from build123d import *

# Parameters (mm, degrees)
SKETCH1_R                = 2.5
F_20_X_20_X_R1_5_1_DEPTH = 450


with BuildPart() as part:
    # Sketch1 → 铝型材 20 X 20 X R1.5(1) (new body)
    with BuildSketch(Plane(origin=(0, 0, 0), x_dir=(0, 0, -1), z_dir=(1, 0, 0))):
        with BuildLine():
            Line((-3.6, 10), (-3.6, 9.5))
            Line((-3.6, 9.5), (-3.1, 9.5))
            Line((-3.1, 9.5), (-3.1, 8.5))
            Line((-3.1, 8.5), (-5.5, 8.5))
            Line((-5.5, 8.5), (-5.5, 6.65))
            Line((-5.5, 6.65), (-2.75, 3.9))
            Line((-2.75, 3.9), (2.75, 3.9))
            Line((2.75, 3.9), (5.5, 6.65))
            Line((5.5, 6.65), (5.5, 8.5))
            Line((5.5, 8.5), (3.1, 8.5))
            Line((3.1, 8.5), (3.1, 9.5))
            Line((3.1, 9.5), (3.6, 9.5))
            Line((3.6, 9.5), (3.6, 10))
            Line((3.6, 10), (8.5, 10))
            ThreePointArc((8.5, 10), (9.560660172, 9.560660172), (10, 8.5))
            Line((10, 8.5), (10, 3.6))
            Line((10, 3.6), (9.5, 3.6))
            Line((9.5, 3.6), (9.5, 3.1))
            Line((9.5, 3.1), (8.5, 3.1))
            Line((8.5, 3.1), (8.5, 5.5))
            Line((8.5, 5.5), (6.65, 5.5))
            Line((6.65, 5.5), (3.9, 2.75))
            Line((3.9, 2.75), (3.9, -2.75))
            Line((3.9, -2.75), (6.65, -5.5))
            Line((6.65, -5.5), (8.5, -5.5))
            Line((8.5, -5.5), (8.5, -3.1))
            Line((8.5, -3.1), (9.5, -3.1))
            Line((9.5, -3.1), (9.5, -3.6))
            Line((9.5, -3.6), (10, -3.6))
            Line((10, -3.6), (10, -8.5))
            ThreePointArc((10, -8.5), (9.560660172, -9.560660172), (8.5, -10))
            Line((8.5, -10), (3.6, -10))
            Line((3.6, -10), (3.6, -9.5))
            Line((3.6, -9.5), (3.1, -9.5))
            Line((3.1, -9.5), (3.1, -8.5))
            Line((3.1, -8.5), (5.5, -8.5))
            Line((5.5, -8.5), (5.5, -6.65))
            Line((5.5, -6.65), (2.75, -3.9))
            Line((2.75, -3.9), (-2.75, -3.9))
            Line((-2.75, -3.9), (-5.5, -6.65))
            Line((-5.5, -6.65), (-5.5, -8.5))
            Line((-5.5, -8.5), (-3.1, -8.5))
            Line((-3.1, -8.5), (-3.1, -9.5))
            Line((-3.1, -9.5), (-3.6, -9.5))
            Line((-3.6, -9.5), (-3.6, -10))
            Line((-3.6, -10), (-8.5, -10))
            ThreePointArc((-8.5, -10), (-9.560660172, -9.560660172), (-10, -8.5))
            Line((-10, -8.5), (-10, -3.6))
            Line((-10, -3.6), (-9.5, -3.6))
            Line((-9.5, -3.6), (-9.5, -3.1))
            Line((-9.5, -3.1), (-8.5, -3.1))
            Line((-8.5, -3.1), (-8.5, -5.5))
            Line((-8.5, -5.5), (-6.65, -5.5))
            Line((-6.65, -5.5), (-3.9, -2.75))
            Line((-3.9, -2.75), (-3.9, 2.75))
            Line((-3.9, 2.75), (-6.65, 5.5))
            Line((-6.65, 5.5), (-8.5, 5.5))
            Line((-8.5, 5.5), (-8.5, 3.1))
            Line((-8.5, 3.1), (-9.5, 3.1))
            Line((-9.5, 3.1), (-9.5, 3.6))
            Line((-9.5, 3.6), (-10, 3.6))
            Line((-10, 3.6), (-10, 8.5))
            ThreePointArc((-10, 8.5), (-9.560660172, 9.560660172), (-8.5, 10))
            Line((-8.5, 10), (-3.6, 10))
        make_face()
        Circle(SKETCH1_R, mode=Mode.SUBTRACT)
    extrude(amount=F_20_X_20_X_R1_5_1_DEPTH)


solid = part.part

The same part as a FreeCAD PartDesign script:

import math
import FreeCAD as App
import Part
import Sketcher

doc = App.newDocument("Part")
params = doc.addObject("Spreadsheet::Sheet", "Params")
for row, (alias, value) in enumerate([
    ("sketch1_diameter", "5 mm"),
    ("sketch1_radius", "1.5 mm"),
    ("sketch1_width", "1 mm"),
    ("sketch1_width2", "4.9 mm"),
    ("sketch1_width3", "2.4 mm"),
    ("pad1_length", "450 mm"),
], start=1):
    params.set(f"A{row}", alias)
    params.set(f"B{row}", "=" + value)
    params.setAlias(f"B{row}", alias)

body = doc.addObject("PartDesign::Body", "Body")

sketch1 = doc.addObject("Sketcher::SketchObject", "Sketch")
body.addObject(sketch1)
sketch1.AttachmentSupport = (doc.YZ_Plane, [""])
sketch1.MapMode = "FlatFace"
sketch1.addGeometry(Part.LineSegment(App.Vector(9.5, 3.6, 0), App.Vector(10, 3.6, 0)), False)
sketch1.addGeometry(Part.LineSegment(App.Vector(10, 3.6, 0), App.Vector(10, 8.5, 0)), False)
sketch1.addGeometry(Part.ArcOfCircle(Part.Circle(App.Vector(8.5, 8.5, 0), App.Vector(0, 0, 1), 1.5), math.radians(0), math.radians(90)), False)
sketch1.addGeometry(Part.LineSegment(App.Vector(8.5, 10, 0), App.Vector(3.6, 10, 0)), False)
sketch1.addGeometry(Part.LineSegment(App.Vector(3.6, 10, 0), App.Vector(3.6, 9.5, 0)), False)
sketch1.addGeometry(Part.LineSegment(App.Vector(3.6, 9.5, 0), App.Vector(3.1, 9.5, 0)), False)
sketch1.addGeometry(Part.LineSegment(App.Vector(3.1, 9.5, 0), App.Vector(3.1, 8.5, 0)), False)
sketch1.addGeometry(Part.LineSegment(App.Vector(3.1, 8.5, 0), App.Vector(5.5, 8.5, 0)), False)
sketch1.addGeometry(Part.LineSegment(App.Vector(5.5, 8.5, 0), App.Vector(5.5, 6.7, 0)), False)
sketch1.addGeometry(Part.LineSegment(App.Vector(5.5, 6.7, 0), App.Vector(2.8, 3.9, 0)), False)
sketch1.addGeometry(Part.LineSegment(App.Vector(2.8, 3.9, 0), App.Vector(-2.8, 3.9, 0)), False)
sketch1.addGeometry(Part.LineSegment(App.Vector(-2.8, 3.9, 0), App.Vector(-5.5, 6.7, 0)), False)
sketch1.addGeometry(Part.LineSegment(App.Vector(-5.5, 6.7, 0), App.Vector(-5.5, 8.5, 0)), False)
sketch1.addGeometry(Part.LineSegment(App.Vector(-5.5, 8.5, 0), App.Vector(-3.1, 8.5, 0)), False)
sketch1.addGeometry(Part.LineSegment(App.Vector(-3.1, 8.5, 0), App.Vector(-3.1, 9.5, 0)), False)
sketch1.addGeometry(Part.LineSegment(App.Vector(-3.1, 9.5, 0), App.Vector(-3.6, 9.5, 0)), False)
sketch1.addGeometry(Part.LineSegment(App.Vector(-3.6, 9.5, 0), App.Vector(-3.6, 10, 0)), False)
sketch1.addGeometry(Part.LineSegment(App.Vector(-3.6, 10, 0), App.Vector(-8.5, 10, 0)), False)
sketch1.addGeometry(Part.ArcOfCircle(Part.Circle(App.Vector(-8.5, 8.5, 0), App.Vector(0, 0, 1), 1.5), math.radians(90), math.radians(180)), False)
sketch1.addGeometry(Part.LineSegment(App.Vector(-10, 8.5, 0), App.Vector(-10, 3.6, 0)), False)
sketch1.addGeometry(Part.LineSegment(App.Vector(-10, 3.6, 0), App.Vector(-9.5, 3.6, 0)), False)
sketch1.addGeometry(Part.LineSegment(App.Vector(-9.5, 3.6, 0), App.Vector(-9.5, 3.1, 0)), False)
sketch1.addGeometry(Part.LineSegment(App.Vector(-9.5, 3.1, 0), App.Vector(-8.5, 3.1, 0)), False)
sketch1.addGeometry(Part.LineSegment(App.Vector(-8.5, 3.1, 0), App.Vector(-8.5, 5.5, 0)), False)
sketch1.addGeometry(Part.LineSegment(App.Vector(-8.5, 5.5, 0), App.Vector(-6.7, 5.5, 0)), False)
sketch1.addGeometry(Part.LineSegment(App.Vector(-6.7, 5.5, 0), App.Vector(-3.9, 2.8, 0)), False)
sketch1.addGeometry(Part.LineSegment(App.Vector(-3.9, 2.8, 0), App.Vector(-3.9, -2.8, 0)), False)
sketch1.addGeometry(Part.LineSegment(App.Vector(-3.9, -2.8, 0), App.Vector(-6.7, -5.5, 0)), False)
sketch1.addGeometry(Part.LineSegment(App.Vector(-6.7, -5.5, 0), App.Vector(-8.5, -5.5, 0)), False)
sketch1.addGeometry(Part.LineSegment(App.Vector(-8.5, -5.5, 0), App.Vector(-8.5, -3.1, 0)), False)
sketch1.addGeometry(Part.LineSegment(App.Vector(-8.5, -3.1, 0), App.Vector(-9.5, -3.1, 0)), False)
sketch1.addGeometry(Part.LineSegment(App.Vector(-9.5, -3.1, 0), App.Vector(-9.5, -3.6, 0)), False)
sketch1.addGeometry(Part.LineSegment(App.Vector(-9.5, -3.6, 0), App.Vector(-10, -3.6, 0)), False)
sketch1.addGeometry(Part.LineSegment(App.Vector(-10, -3.6, 0), App.Vector(-10, -8.5, 0)), False)
sketch1.addGeometry(Part.ArcOfCircle(Part.Circle(App.Vector(-8.5, -8.5, 0), App.Vector(0, 0, 1), 1.5), math.radians(180), math.radians(270)), False)
sketch1.addGeometry(Part.LineSegment(App.Vector(-8.5, -10, 0), App.Vector(-3.6, -10, 0)), False)
sketch1.addGeometry(Part.LineSegment(App.Vector(-3.6, -10, 0), App.Vector(-3.6, -9.5, 0)), False)
sketch1.addGeometry(Part.LineSegment(App.Vector(-3.6, -9.5, 0), App.Vector(-3.1, -9.5, 0)), False)
sketch1.addGeometry(Part.LineSegment(App.Vector(-3.1, -9.5, 0), App.Vector(-3.1, -8.5, 0)), False)
sketch1.addGeometry(Part.LineSegment(App.Vector(-3.1, -8.5, 0), App.Vector(-5.5, -8.5, 0)), False)
sketch1.addGeometry(Part.LineSegment(App.Vector(-5.5, -8.5, 0), App.Vector(-5.5, -6.7, 0)), False)
sketch1.addGeometry(Part.LineSegment(App.Vector(-5.5, -6.7, 0), App.Vector(-2.8, -3.9, 0)), False)
sketch1.addGeometry(Part.LineSegment(App.Vector(-2.8, -3.9, 0), App.Vector(2.8, -3.9, 0)), False)
sketch1.addGeometry(Part.LineSegment(App.Vector(2.8, -3.9, 0), App.Vector(5.5, -6.7, 0)), False)
sketch1.addGeometry(Part.LineSegment(App.Vector(5.5, -6.7, 0), App.Vector(5.5, -8.5, 0)), False)
sketch1.addGeometry(Part.LineSegment(App.Vector(5.5, -8.5, 0), App.Vector(3.1, -8.5, 0)), False)
sketch1.addGeometry(Part.LineSegment(App.Vector(3.1, -8.5, 0), App.Vector(3.1, -9.5, 0)), False)
sketch1.addGeometry(Part.LineSegment(App.Vector(3.1, -9.5, 0), App.Vector(3.6, -9.5, 0)), False)
sketch1.addGeometry(Part.LineSegment(App.Vector(3.6, -9.5, 0), App.Vector(3.6, -10, 0)), False)
sketch1.addGeometry(Part.LineSegment(App.Vector(3.6, -10, 0), App.Vector(8.5, -10, 0)), False)
sketch1.addGeometry(Part.ArcOfCircle(Part.Circle(App.Vector(8.5, -8.5, 0), App.Vector(0, 0, 1), 1.5), math.radians(-90), math.radians(0)), False)
sketch1.addGeometry(Part.LineSegment(App.Vector(10, -8.5, 0), App.Vector(10, -3.6, 0)), False)
sketch1.addGeometry(Part.LineSegment(App.Vector(10, -3.6, 0), App.Vector(9.5, -3.6, 0)), False)
sketch1.addGeometry(Part.LineSegment(App.Vector(9.5, -3.6, 0), App.Vector(9.5, -3.1, 0)), False)
sketch1.addGeometry(Part.LineSegment(App.Vector(9.5, -3.1, 0), App.Vector(8.5, -3.1, 0)), False)
sketch1.addGeometry(Part.LineSegment(App.Vector(8.5, -3.1, 0), App.Vector(8.5, -5.5, 0)), False)
sketch1.addGeometry(Part.LineSegment(App.Vector(8.5, -5.5, 0), App.Vector(6.7, -5.5, 0)), False)
sketch1.addGeometry(Part.LineSegment(App.Vector(6.7, -5.5, 0), App.Vector(3.9, -2.8, 0)), False)
sketch1.addGeometry(Part.LineSegment(App.Vector(3.9, -2.8, 0), App.Vector(3.9, 2.8, 0)), False)
sketch1.addGeometry(Part.LineSegment(App.Vector(3.9, 2.8, 0), App.Vector(6.7, 5.5, 0)), False)
sketch1.addGeometry(Part.LineSegment(App.Vector(6.7, 5.5, 0), App.Vector(8.5, 5.5, 0)), False)
sketch1.addGeometry(Part.LineSegment(App.Vector(8.5, 5.5, 0), App.Vector(8.5, 3.1, 0)), False)
sketch1.addGeometry(Part.LineSegment(App.Vector(8.5, 3.1, 0), App.Vector(9.5, 3.1, 0)), False)
sketch1.addGeometry(Part.LineSegment(App.Vector(9.5, 3.1, 0), App.Vector(9.5, 3.6, 0)), False)
sketch1.addGeometry(Part.Circle(App.Vector(0, 0, 0), App.Vector(0, 0, 1), 2.5), False)
sketch1.addConstraint(Sketcher.Constraint("Coincident", 0, 2, 1, 1))
sketch1.addConstraint(Sketcher.Constraint("Tangent", 1, 2, 2, 1))
sketch1.addConstraint(Sketcher.Constraint("Tangent", 2, 2, 3, 1))
sketch1.addConstraint(Sketcher.Constraint("Coincident", 3, 2, 4, 1))
sketch1.addConstraint(Sketcher.Constraint("Coincident", 4, 2, 5, 1))
sketch1.addConstraint(Sketcher.Constraint("Coincident", 5, 2, 6, 1))
sketch1.addConstraint(Sketcher.Constraint("Coincident", 6, 2, 7, 1))
sketch1.addConstraint(Sketcher.Constraint("Coincident", 7, 2, 8, 1))
sketch1.addConstraint(Sketcher.Constraint("Coincident", 8, 2, 9, 1))
sketch1.addConstraint(Sketcher.Constraint("Coincident", 9, 2, 10, 1))
sketch1.addConstraint(Sketcher.Constraint("Coincident", 10, 2, 11, 1))
sketch1.addConstraint(Sketcher.Constraint("Coincident", 11, 2, 12, 1))
sketch1.addConstraint(Sketcher.Constraint("Coincident", 12, 2, 13, 1))
sketch1.addConstraint(Sketcher.Constraint("Coincident", 13, 2, 14, 1))
sketch1.addConstraint(Sketcher.Constraint("Coincident", 14, 2, 15, 1))
sketch1.addConstraint(Sketcher.Constraint("Coincident", 15, 2, 16, 1))
sketch1.addConstraint(Sketcher.Constraint("Coincident", 16, 2, 17, 1))
sketch1.addConstraint(Sketcher.Constraint("Tangent", 17, 2, 18, 1))
sketch1.addConstraint(Sketcher.Constraint("Tangent", 18, 2, 19, 1))
sketch1.addConstraint(Sketcher.Constraint("Coincident", 19, 2, 20, 1))
sketch1.addConstraint(Sketcher.Constraint("Coincident", 20, 2, 21, 1))
sketch1.addConstraint(Sketcher.Constraint("Coincident", 21, 2, 22, 1))
sketch1.addConstraint(Sketcher.Constraint("Coincident", 22, 2, 23, 1))
sketch1.addConstraint(Sketcher.Constraint("Coincident", 23, 2, 24, 1))
sketch1.addConstraint(Sketcher.Constraint("Coincident", 24, 2, 25, 1))
sketch1.addConstraint(Sketcher.Constraint("Coincident", 25, 2, 26, 1))
sketch1.addConstraint(Sketcher.Constraint("Coincident", 26, 2, 27, 1))
sketch1.addConstraint(Sketcher.Constraint("Coincident", 27, 2, 28, 1))
sketch1.addConstraint(Sketcher.Constraint("Coincident", 28, 2, 29, 1))
sketch1.addConstraint(Sketcher.Constraint("Coincident", 29, 2, 30, 1))
sketch1.addConstraint(Sketcher.Constraint("Coincident", 30, 2, 31, 1))
sketch1.addConstraint(Sketcher.Constraint("Coincident", 31, 2, 32, 1))
sketch1.addConstraint(Sketcher.Constraint("Coincident", 32, 2, 33, 1))
sketch1.addConstraint(Sketcher.Constraint("Tangent", 33, 2, 34, 1))
sketch1.addConstraint(Sketcher.Constraint("Tangent", 34, 2, 35, 1))
sketch1.addConstraint(Sketcher.Constraint("Coincident", 35, 2, 36, 1))
sketch1.addConstraint(Sketcher.Constraint("Coincident", 36, 2, 37, 1))
sketch1.addConstraint(Sketcher.Constraint("Coincident", 37, 2, 38, 1))
sketch1.addConstraint(Sketcher.Constraint("Coincident", 38, 2, 39, 1))
sketch1.addConstraint(Sketcher.Constraint("Coincident", 39, 2, 40, 1))
sketch1.addConstraint(Sketcher.Constraint("Coincident", 40, 2, 41, 1))
sketch1.addConstraint(Sketcher.Constraint("Coincident", 41, 2, 42, 1))
sketch1.addConstraint(Sketcher.Constraint("Coincident", 42, 2, 43, 1))
sketch1.addConstraint(Sketcher.Constraint("Coincident", 43, 2, 44, 1))
sketch1.addConstraint(Sketcher.Constraint("Coincident", 44, 2, 45, 1))
sketch1.addConstraint(Sketcher.Constraint("Coincident", 45, 2, 46, 1))
sketch1.addConstraint(Sketcher.Constraint("Coincident", 46, 2, 47, 1))
sketch1.addConstraint(Sketcher.Constraint("Coincident", 47, 2, 48, 1))
sketch1.addConstraint(Sketcher.Constraint("Coincident", 48, 2, 49, 1))
sketch1.addConstraint(Sketcher.Constraint("Tangent", 49, 2, 50, 1))
sketch1.addConstraint(Sketcher.Constraint("Tangent", 50, 2, 51, 1))
sketch1.addConstraint(Sketcher.Constraint("Coincident", 51, 2, 52, 1))
sketch1.addConstraint(Sketcher.Constraint("Coincident", 52, 2, 53, 1))
sketch1.addConstraint(Sketcher.Constraint("Coincident", 53, 2, 54, 1))
sketch1.addConstraint(Sketcher.Constraint("Coincident", 54, 2, 55, 1))
sketch1.addConstraint(Sketcher.Constraint("Coincident", 55, 2, 56, 1))
sketch1.addConstraint(Sketcher.Constraint("Coincident", 56, 2, 57, 1))
sketch1.addConstraint(Sketcher.Constraint("Coincident", 57, 2, 58, 1))
sketch1.addConstraint(Sketcher.Constraint("Coincident", 58, 2, 59, 1))
sketch1.addConstraint(Sketcher.Constraint("Coincident", 59, 2, 60, 1))
sketch1.addConstraint(Sketcher.Constraint("Coincident", 60, 2, 61, 1))
sketch1.addConstraint(Sketcher.Constraint("Coincident", 61, 2, 62, 1))
sketch1.addConstraint(Sketcher.Constraint("Coincident", 62, 2, 63, 1))
sketch1.addConstraint(Sketcher.Constraint("Coincident", 63, 2, 0, 1))
sketch1.addConstraint(Sketcher.Constraint("Horizontal", 0))
sketch1.addConstraint(Sketcher.Constraint("Vertical", 1))
sketch1.addConstraint(Sketcher.Constraint("Horizontal", 3))
sketch1.addConstraint(Sketcher.Constraint("Vertical", 4))
sketch1.addConstraint(Sketcher.Constraint("Horizontal", 5))
sketch1.addConstraint(Sketcher.Constraint("Vertical", 6))
sketch1.addConstraint(Sketcher.Constraint("Horizontal", 7))
sketch1.addConstraint(Sketcher.Constraint("Vertical", 8))
sketch1.addConstraint(Sketcher.Constraint("Horizontal", 10))
sketch1.addConstraint(Sketcher.Constraint("Vertical", 12))
sketch1.addConstraint(Sketcher.Constraint("Horizontal", 13))
sketch1.addConstraint(Sketcher.Constraint("Vertical", 14))
sketch1.addConstraint(Sketcher.Constraint("Horizontal", 15))
sketch1.addConstraint(Sketcher.Constraint("Vertical", 16))
sketch1.addConstraint(Sketcher.Constraint("Horizontal", 17))
sketch1.addConstraint(Sketcher.Constraint("Vertical", 19))
sketch1.addConstraint(Sketcher.Constraint("Horizontal", 20))
sketch1.addConstraint(Sketcher.Constraint("Vertical", 21))
sketch1.addConstraint(Sketcher.Constraint("Horizontal", 22))
sketch1.addConstraint(Sketcher.Constraint("Vertical", 23))
sketch1.addConstraint(Sketcher.Constraint("Horizontal", 24))
sketch1.addConstraint(Sketcher.Constraint("Vertical", 26))
sketch1.addConstraint(Sketcher.Constraint("Horizontal", 28))
sketch1.addConstraint(Sketcher.Constraint("Vertical", 29))
sketch1.addConstraint(Sketcher.Constraint("Horizontal", 30))
sketch1.addConstraint(Sketcher.Constraint("Vertical", 31))
sketch1.addConstraint(Sketcher.Constraint("Horizontal", 32))
sketch1.addConstraint(Sketcher.Constraint("Vertical", 33))
sketch1.addConstraint(Sketcher.Constraint("Horizontal", 35))
sketch1.addConstraint(Sketcher.Constraint("Vertical", 36))
sketch1.addConstraint(Sketcher.Constraint("Horizontal", 37))
sketch1.addConstraint(Sketcher.Constraint("Vertical", 38))
sketch1.addConstraint(Sketcher.Constraint("Horizontal", 39))
sketch1.addConstraint(Sketcher.Constraint("Vertical", 40))
sketch1.addConstraint(Sketcher.Constraint("Horizontal", 42))
sketch1.addConstraint(Sketcher.Constraint("Vertical", 44))
sketch1.addConstraint(Sketcher.Constraint("Horizontal", 45))
sketch1.addConstraint(Sketcher.Constraint("Vertical", 46))
sketch1.addConstraint(Sketcher.Constraint("Horizontal", 47))
sketch1.addConstraint(Sketcher.Constraint("Vertical", 48))
sketch1.addConstraint(Sketcher.Constraint("Horizontal", 49))
sketch1.addConstraint(Sketcher.Constraint("Vertical", 51))
sketch1.addConstraint(Sketcher.Constraint("Horizontal", 52))
sketch1.addConstraint(Sketcher.Constraint("Vertical", 53))
sketch1.addConstraint(Sketcher.Constraint("Horizontal", 54))
sketch1.addConstraint(Sketcher.Constraint("Vertical", 55))
sketch1.addConstraint(Sketcher.Constraint("Horizontal", 56))
sketch1.addConstraint(Sketcher.Constraint("Vertical", 58))
sketch1.addConstraint(Sketcher.Constraint("Horizontal", 60))
sketch1.addConstraint(Sketcher.Constraint("Vertical", 61))
sketch1.addConstraint(Sketcher.Constraint("Horizontal", 62))
sketch1.addConstraint(Sketcher.Constraint("Vertical", 63))
sketch1.addConstraint(Sketcher.Constraint("Coincident", 64, 3, -1, 1))
sketch1.addConstraint(Sketcher.Constraint("Equal", 2, 18))
sketch1.addConstraint(Sketcher.Constraint("Equal", 18, 34))
sketch1.addConstraint(Sketcher.Constraint("Equal", 34, 50))
sketch1.addConstraint(Sketcher.Constraint("Symmetric", 2, 3, 34, 3, -1, 1))
sketch1.addConstraint(Sketcher.Constraint("Symmetric", 18, 3, 50, 3, -1, 1))
sketch1.addConstraint(Sketcher.Constraint("Symmetric", 4, 2, 36, 2, -1, 1))
sketch1.addConstraint(Sketcher.Constraint("Symmetric", 6, 2, 38, 2, -1, 1))
sketch1.addConstraint(Sketcher.Constraint("Symmetric", 8, 2, 40, 2, -1, 1))
sketch1.addConstraint(Sketcher.Constraint("Symmetric", 9, 2, 41, 2, -1, 1))
sketch1.addConstraint(Sketcher.Constraint("Symmetric", 11, 2, 43, 2, -1, 1))
sketch1.addConstraint(Sketcher.Constraint("Symmetric", 13, 2, 45, 2, -1, 1))
sketch1.addConstraint(Sketcher.Constraint("Symmetric", 15, 2, 47, 2, -1, 1))
sketch1.addConstraint(Sketcher.Constraint("Symmetric", 20, 2, 52, 2, -1, 1))
sketch1.addConstraint(Sketcher.Constraint("Symmetric", 22, 2, 54, 2, -1, 1))
sketch1.addConstraint(Sketcher.Constraint("Symmetric", 24, 2, 56, 2, -1, 1))
sketch1.addConstraint(Sketcher.Constraint("Symmetric", 25, 2, 57, 2, -1, 1))
sketch1.addConstraint(Sketcher.Constraint("Symmetric", 27, 2, 59, 2, -1, 1))
sketch1.addConstraint(Sketcher.Constraint("Symmetric", 29, 2, 61, 2, -1, 1))
sketch1.addConstraint(Sketcher.Constraint("Symmetric", 31, 2, 63, 2, -1, 1))
sketch1.addConstraint(Sketcher.Constraint("Symmetric", 2, 3, 18, 3, -2))
sketch1.addConstraint(Sketcher.Constraint("Symmetric", 8, 2, 11, 2, -2))
sketch1.addConstraint(Sketcher.Constraint("Symmetric", 6, 2, 13, 2, -2))
sketch1.addConstraint(Sketcher.Constraint("Symmetric", 4, 2, 15, 2, -2))
sketch1.addConstraint(Sketcher.Constraint("Symmetric", 31, 2, 52, 2, -2))
sketch1.addConstraint(Sketcher.Constraint("Symmetric", 29, 2, 54, 2, -2))
sketch1.addConstraint(Sketcher.Constraint("Symmetric", 27, 2, 56, 2, -2))
sketch1.addConstraint(Sketcher.Constraint("Perpendicular", 9, 11))
sketch1.addConstraint(Sketcher.Constraint("Parallel", 11, 25))
sketch1.addConstraint(Sketcher.Constraint("Perpendicular", 25, 27))
sketch1.addConstraint(Sketcher.Constraint("Perpendicular", 41, 43))
sketch1.addConstraint(Sketcher.Constraint("Perpendicular", 57, 59))
sketch1.addConstraint(Sketcher.Constraint("Horizontal", 1, 2, 6, 2))
sketch1.addConstraint(Sketcher.Constraint("Horizontal", 26, 2, 57, 2))
sketch1.addConstraint(Sketcher.Constraint("Vertical", 17, 2, 22, 2))
sketch1.addConstraint(Sketcher.Constraint("Equal", 0, 5))
sketch1.addConstraint(Sketcher.Constraint("Equal", 49, 1))
sketch1.addConstraint(Sketcher.Constraint("Equal", 52, 4))
sketch1.addConstraint(Sketcher.Constraint("Equal", 60, 8))
sketch1.addConstraint(Sketcher.Constraint("Equal", 16, 21))
sketch1.addConstraint(Sketcher.Constraint("Equal", 45, 23))
sketch1.addConstraint(Sketcher.Constraint("Equal", 42, 26))
sketch1.addConstraint(Sketcher.Constraint("Equal", 11, 25))
sketch1.addConstraint(Sketcher.Constraint("Diameter", 64, 5.0))
sketch1.addConstraint(Sketcher.Constraint("Radius", 2, 1.5))
sketch1.addConstraint(Sketcher.Constraint("DistanceX", 22, 1, 22, 2, 1.0))
sketch1.addConstraint(Sketcher.Constraint("DistanceX", 3, 2, 3, 1, 4.9))
sketch1.addConstraint(Sketcher.Constraint("DistanceX", 7, 1, 7, 2, 2.4))
sketch1.addConstraint(Sketcher.Constraint("DistanceX", 10, 2, 10, 1, 5.5))
sketch1.addConstraint(Sketcher.Constraint("DistanceX", -1, 1, 0, 2, 10.0))
sketch1.addConstraint(Sketcher.Constraint("DistanceX", 24, 1, 24, 2, 1.85))
sketch1.setExpression("Constraints[159]", "Params.sketch1_diameter")
sketch1.setExpression("Constraints[160]", "Params.sketch1_radius")
sketch1.setExpression("Constraints[161]", "Params.sketch1_width")
sketch1.setExpression("Constraints[162]", "Params.sketch1_width2")
sketch1.setExpression("Constraints[163]", "Params.sketch1_width3")
pad1 = doc.addObject("PartDesign::Pad", "Pad")
body.addObject(pad1)
pad1.Profile = sketch1
pad1.setExpression("Length", "Params.pad1_length")

doc.recompute()
